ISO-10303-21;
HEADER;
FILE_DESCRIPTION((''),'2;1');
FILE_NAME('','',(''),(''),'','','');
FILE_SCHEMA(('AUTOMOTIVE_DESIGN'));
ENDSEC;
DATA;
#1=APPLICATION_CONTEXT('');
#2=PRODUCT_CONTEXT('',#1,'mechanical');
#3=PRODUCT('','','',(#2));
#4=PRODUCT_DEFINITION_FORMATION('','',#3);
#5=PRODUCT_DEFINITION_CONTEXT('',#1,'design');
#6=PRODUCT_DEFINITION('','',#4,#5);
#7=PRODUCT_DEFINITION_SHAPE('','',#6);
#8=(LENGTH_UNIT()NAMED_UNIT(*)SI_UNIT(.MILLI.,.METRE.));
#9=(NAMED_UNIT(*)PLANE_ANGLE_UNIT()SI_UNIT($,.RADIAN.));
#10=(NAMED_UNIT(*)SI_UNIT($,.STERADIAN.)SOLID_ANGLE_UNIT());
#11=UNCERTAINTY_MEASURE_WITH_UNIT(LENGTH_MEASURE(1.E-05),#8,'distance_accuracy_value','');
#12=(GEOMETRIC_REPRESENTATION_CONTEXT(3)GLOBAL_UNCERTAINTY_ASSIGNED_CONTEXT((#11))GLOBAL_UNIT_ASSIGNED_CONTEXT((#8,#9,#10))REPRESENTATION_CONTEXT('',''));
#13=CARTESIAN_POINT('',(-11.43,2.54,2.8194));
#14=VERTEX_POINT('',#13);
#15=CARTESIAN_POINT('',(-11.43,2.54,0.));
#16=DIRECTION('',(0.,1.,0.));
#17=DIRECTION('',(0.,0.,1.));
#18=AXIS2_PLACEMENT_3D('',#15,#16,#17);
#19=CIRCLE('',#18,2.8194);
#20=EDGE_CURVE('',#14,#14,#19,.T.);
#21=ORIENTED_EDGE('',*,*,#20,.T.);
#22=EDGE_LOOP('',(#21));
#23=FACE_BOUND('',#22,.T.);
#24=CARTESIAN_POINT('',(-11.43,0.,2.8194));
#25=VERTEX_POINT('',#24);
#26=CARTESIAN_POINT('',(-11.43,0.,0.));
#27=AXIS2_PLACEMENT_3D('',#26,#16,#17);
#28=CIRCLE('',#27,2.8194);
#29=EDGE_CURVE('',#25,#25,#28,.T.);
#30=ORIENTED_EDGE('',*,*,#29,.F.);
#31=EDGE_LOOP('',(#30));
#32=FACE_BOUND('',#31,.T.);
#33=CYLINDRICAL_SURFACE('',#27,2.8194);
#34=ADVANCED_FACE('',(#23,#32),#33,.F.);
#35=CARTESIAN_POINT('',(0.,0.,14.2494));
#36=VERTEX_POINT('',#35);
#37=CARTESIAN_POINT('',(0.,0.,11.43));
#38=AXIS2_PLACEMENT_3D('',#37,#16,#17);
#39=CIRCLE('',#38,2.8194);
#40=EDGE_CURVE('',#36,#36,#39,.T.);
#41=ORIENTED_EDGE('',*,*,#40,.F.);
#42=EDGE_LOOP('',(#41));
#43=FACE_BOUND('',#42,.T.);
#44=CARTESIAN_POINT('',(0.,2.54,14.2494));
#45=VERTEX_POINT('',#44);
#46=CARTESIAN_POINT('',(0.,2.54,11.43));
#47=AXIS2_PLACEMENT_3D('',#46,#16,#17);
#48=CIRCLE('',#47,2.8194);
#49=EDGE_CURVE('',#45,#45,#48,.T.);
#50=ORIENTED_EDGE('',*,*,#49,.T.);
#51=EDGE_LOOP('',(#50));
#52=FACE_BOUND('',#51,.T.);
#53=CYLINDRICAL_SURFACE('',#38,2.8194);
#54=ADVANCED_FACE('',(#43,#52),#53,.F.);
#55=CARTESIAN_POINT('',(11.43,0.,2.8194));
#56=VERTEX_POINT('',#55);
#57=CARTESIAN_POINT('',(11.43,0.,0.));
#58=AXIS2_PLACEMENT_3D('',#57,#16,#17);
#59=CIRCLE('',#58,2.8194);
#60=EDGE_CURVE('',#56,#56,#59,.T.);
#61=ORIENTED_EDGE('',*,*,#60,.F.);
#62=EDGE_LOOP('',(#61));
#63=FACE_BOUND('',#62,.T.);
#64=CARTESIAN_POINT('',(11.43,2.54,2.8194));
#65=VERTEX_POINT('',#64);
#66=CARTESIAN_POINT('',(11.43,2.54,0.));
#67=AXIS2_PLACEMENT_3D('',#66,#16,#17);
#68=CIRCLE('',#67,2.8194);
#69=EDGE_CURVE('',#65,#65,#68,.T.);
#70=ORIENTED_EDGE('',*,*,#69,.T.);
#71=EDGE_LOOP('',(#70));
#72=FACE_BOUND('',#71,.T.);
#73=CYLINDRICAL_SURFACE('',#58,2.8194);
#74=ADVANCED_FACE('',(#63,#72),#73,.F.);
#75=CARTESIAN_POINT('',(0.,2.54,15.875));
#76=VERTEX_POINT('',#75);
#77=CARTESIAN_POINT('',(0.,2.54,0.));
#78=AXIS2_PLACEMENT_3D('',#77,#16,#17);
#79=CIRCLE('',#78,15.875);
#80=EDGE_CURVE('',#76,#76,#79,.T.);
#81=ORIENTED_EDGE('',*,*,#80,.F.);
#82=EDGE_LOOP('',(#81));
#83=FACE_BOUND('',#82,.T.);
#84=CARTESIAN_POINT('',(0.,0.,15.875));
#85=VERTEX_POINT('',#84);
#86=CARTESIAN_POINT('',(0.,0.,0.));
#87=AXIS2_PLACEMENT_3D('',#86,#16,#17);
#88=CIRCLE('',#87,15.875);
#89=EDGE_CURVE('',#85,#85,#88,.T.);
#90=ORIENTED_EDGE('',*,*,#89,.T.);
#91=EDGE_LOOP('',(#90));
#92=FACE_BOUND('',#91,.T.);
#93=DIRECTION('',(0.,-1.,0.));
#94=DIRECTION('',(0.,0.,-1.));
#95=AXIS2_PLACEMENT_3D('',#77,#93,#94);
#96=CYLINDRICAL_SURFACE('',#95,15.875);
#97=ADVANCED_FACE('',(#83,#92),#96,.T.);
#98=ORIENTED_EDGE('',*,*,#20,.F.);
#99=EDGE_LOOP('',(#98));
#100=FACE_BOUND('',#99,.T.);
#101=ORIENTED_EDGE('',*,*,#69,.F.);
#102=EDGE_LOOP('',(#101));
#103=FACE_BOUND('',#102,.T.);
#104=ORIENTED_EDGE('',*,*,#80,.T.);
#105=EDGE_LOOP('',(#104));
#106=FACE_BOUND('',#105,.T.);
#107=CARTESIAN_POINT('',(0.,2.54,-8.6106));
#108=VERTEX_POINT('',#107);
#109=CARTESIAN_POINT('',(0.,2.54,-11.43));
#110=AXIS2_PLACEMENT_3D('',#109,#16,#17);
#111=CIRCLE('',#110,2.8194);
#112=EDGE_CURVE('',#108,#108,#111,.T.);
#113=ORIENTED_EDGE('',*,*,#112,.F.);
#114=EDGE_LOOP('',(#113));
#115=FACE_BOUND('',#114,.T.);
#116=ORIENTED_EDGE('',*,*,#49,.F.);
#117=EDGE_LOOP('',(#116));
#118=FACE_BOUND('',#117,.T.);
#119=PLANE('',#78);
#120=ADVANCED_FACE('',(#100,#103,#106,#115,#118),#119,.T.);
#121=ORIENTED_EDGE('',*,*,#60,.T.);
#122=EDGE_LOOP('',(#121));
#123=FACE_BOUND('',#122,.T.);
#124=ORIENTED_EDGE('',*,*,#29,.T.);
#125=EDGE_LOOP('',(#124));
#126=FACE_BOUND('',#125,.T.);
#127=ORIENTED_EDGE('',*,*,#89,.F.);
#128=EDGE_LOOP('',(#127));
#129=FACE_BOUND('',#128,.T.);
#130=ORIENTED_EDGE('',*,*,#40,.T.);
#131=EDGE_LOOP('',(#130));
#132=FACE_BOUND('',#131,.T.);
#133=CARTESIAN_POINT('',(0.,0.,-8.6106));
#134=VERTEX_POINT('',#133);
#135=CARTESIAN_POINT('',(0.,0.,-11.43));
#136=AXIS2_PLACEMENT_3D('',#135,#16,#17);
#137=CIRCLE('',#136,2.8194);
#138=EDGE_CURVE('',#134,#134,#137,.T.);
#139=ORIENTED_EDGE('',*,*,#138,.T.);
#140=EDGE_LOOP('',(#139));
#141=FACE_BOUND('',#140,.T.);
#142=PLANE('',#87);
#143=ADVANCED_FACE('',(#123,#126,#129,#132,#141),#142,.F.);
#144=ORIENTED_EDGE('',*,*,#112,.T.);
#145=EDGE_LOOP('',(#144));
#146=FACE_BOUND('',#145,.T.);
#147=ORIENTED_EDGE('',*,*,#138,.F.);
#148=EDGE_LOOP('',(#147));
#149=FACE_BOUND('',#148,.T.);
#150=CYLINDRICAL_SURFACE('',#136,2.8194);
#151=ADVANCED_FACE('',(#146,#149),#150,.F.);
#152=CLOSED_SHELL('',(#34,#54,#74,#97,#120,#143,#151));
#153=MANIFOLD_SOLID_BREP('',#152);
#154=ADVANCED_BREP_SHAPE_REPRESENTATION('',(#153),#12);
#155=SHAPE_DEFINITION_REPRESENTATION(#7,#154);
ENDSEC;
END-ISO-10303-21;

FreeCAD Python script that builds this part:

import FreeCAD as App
import Part
import Sketcher
from FreeCAD import Vector
Q = App.Units.Quantity

doc = App.newDocument("Part")
body = doc.addObject("PartDesign::Body", "Body")

# Sketch on XZ plane
sketch1 = body.newObject("Sketcher::SketchObject", "Sketch")
sketch1.AttachmentSupport = (doc.getObject("XZ_Plane"), [""])
sketch1.MapMode = "FlatFace"
sketch1.addGeometry(Part.Circle(Vector(0, 0, 0), Vector(0, 0, 1), 15.875), False)
sketch1.addConstraint([
    Sketcher.Constraint("Coincident", 0, 3, -1, 1),
    Sketcher.Constraint("Diameter", 0, Q("1.25 in")),
])
pad1 = body.newObject("PartDesign::Pad", "Pad")
pad1.Profile = sketch1
pad1.Length = Q("0.1 in")
pad1.Reversed = True

# Sketch on XZ plane
sketch2 = body.newObject("Sketcher::SketchObject", "Sketch001")
sketch2.AttachmentSupport = (doc.getObject("XZ_Plane"), [""])
sketch2.MapMode = "FlatFace"
sketch2.AttachmentOffset = App.Placement(Vector(0, 0, -0.1 * 25.4), App.Rotation())
sketch2.addGeometry([
    Part.Circle(Vector(0, -11.43, 0), Vector(0, 0, 1), 2.8194),
    Part.Circle(Vector(11.43, 0, 0), Vector(0, 0, 1), 2.8194),
    Part.Circle(Vector(0, 11.43, 0), Vector(0, 0, 1), 2.8194),
    Part.Circle(Vector(-11.43, 0, 0), Vector(0, 0, 1), 2.8194),
], False)
sketch2.addConstraint([
    Sketcher.Constraint("Equal", 0, 1),
    Sketcher.Constraint("Equal", 1, 2),
    Sketcher.Constraint("Equal", 2, 3),
    Sketcher.Constraint("Symmetric", 0, 3, 2, 3, -1, 1),
    Sketcher.Constraint("Symmetric", 1, 3, 3, 3, -1, 1),
    Sketcher.Constraint("PointOnObject", 0, 3, -2),
    Sketcher.Constraint("PointOnObject", 1, 3, -1),
    Sketcher.Constraint("Diameter", 0, Q("0.222 in")),
    Sketcher.Constraint("DistanceY", 0, 3, 2, 3, Q("0.9 in")),
    Sketcher.Constraint("DistanceX", 3, 3, 1, 3, Q("0.9 in")),
])
pocket1 = body.newObject("PartDesign::Pocket", "Pocket")
pocket1.Profile = sketch2
pocket1.Length = Q("0.1 in")
pocket1.Reversed = True

doc.recompute()
